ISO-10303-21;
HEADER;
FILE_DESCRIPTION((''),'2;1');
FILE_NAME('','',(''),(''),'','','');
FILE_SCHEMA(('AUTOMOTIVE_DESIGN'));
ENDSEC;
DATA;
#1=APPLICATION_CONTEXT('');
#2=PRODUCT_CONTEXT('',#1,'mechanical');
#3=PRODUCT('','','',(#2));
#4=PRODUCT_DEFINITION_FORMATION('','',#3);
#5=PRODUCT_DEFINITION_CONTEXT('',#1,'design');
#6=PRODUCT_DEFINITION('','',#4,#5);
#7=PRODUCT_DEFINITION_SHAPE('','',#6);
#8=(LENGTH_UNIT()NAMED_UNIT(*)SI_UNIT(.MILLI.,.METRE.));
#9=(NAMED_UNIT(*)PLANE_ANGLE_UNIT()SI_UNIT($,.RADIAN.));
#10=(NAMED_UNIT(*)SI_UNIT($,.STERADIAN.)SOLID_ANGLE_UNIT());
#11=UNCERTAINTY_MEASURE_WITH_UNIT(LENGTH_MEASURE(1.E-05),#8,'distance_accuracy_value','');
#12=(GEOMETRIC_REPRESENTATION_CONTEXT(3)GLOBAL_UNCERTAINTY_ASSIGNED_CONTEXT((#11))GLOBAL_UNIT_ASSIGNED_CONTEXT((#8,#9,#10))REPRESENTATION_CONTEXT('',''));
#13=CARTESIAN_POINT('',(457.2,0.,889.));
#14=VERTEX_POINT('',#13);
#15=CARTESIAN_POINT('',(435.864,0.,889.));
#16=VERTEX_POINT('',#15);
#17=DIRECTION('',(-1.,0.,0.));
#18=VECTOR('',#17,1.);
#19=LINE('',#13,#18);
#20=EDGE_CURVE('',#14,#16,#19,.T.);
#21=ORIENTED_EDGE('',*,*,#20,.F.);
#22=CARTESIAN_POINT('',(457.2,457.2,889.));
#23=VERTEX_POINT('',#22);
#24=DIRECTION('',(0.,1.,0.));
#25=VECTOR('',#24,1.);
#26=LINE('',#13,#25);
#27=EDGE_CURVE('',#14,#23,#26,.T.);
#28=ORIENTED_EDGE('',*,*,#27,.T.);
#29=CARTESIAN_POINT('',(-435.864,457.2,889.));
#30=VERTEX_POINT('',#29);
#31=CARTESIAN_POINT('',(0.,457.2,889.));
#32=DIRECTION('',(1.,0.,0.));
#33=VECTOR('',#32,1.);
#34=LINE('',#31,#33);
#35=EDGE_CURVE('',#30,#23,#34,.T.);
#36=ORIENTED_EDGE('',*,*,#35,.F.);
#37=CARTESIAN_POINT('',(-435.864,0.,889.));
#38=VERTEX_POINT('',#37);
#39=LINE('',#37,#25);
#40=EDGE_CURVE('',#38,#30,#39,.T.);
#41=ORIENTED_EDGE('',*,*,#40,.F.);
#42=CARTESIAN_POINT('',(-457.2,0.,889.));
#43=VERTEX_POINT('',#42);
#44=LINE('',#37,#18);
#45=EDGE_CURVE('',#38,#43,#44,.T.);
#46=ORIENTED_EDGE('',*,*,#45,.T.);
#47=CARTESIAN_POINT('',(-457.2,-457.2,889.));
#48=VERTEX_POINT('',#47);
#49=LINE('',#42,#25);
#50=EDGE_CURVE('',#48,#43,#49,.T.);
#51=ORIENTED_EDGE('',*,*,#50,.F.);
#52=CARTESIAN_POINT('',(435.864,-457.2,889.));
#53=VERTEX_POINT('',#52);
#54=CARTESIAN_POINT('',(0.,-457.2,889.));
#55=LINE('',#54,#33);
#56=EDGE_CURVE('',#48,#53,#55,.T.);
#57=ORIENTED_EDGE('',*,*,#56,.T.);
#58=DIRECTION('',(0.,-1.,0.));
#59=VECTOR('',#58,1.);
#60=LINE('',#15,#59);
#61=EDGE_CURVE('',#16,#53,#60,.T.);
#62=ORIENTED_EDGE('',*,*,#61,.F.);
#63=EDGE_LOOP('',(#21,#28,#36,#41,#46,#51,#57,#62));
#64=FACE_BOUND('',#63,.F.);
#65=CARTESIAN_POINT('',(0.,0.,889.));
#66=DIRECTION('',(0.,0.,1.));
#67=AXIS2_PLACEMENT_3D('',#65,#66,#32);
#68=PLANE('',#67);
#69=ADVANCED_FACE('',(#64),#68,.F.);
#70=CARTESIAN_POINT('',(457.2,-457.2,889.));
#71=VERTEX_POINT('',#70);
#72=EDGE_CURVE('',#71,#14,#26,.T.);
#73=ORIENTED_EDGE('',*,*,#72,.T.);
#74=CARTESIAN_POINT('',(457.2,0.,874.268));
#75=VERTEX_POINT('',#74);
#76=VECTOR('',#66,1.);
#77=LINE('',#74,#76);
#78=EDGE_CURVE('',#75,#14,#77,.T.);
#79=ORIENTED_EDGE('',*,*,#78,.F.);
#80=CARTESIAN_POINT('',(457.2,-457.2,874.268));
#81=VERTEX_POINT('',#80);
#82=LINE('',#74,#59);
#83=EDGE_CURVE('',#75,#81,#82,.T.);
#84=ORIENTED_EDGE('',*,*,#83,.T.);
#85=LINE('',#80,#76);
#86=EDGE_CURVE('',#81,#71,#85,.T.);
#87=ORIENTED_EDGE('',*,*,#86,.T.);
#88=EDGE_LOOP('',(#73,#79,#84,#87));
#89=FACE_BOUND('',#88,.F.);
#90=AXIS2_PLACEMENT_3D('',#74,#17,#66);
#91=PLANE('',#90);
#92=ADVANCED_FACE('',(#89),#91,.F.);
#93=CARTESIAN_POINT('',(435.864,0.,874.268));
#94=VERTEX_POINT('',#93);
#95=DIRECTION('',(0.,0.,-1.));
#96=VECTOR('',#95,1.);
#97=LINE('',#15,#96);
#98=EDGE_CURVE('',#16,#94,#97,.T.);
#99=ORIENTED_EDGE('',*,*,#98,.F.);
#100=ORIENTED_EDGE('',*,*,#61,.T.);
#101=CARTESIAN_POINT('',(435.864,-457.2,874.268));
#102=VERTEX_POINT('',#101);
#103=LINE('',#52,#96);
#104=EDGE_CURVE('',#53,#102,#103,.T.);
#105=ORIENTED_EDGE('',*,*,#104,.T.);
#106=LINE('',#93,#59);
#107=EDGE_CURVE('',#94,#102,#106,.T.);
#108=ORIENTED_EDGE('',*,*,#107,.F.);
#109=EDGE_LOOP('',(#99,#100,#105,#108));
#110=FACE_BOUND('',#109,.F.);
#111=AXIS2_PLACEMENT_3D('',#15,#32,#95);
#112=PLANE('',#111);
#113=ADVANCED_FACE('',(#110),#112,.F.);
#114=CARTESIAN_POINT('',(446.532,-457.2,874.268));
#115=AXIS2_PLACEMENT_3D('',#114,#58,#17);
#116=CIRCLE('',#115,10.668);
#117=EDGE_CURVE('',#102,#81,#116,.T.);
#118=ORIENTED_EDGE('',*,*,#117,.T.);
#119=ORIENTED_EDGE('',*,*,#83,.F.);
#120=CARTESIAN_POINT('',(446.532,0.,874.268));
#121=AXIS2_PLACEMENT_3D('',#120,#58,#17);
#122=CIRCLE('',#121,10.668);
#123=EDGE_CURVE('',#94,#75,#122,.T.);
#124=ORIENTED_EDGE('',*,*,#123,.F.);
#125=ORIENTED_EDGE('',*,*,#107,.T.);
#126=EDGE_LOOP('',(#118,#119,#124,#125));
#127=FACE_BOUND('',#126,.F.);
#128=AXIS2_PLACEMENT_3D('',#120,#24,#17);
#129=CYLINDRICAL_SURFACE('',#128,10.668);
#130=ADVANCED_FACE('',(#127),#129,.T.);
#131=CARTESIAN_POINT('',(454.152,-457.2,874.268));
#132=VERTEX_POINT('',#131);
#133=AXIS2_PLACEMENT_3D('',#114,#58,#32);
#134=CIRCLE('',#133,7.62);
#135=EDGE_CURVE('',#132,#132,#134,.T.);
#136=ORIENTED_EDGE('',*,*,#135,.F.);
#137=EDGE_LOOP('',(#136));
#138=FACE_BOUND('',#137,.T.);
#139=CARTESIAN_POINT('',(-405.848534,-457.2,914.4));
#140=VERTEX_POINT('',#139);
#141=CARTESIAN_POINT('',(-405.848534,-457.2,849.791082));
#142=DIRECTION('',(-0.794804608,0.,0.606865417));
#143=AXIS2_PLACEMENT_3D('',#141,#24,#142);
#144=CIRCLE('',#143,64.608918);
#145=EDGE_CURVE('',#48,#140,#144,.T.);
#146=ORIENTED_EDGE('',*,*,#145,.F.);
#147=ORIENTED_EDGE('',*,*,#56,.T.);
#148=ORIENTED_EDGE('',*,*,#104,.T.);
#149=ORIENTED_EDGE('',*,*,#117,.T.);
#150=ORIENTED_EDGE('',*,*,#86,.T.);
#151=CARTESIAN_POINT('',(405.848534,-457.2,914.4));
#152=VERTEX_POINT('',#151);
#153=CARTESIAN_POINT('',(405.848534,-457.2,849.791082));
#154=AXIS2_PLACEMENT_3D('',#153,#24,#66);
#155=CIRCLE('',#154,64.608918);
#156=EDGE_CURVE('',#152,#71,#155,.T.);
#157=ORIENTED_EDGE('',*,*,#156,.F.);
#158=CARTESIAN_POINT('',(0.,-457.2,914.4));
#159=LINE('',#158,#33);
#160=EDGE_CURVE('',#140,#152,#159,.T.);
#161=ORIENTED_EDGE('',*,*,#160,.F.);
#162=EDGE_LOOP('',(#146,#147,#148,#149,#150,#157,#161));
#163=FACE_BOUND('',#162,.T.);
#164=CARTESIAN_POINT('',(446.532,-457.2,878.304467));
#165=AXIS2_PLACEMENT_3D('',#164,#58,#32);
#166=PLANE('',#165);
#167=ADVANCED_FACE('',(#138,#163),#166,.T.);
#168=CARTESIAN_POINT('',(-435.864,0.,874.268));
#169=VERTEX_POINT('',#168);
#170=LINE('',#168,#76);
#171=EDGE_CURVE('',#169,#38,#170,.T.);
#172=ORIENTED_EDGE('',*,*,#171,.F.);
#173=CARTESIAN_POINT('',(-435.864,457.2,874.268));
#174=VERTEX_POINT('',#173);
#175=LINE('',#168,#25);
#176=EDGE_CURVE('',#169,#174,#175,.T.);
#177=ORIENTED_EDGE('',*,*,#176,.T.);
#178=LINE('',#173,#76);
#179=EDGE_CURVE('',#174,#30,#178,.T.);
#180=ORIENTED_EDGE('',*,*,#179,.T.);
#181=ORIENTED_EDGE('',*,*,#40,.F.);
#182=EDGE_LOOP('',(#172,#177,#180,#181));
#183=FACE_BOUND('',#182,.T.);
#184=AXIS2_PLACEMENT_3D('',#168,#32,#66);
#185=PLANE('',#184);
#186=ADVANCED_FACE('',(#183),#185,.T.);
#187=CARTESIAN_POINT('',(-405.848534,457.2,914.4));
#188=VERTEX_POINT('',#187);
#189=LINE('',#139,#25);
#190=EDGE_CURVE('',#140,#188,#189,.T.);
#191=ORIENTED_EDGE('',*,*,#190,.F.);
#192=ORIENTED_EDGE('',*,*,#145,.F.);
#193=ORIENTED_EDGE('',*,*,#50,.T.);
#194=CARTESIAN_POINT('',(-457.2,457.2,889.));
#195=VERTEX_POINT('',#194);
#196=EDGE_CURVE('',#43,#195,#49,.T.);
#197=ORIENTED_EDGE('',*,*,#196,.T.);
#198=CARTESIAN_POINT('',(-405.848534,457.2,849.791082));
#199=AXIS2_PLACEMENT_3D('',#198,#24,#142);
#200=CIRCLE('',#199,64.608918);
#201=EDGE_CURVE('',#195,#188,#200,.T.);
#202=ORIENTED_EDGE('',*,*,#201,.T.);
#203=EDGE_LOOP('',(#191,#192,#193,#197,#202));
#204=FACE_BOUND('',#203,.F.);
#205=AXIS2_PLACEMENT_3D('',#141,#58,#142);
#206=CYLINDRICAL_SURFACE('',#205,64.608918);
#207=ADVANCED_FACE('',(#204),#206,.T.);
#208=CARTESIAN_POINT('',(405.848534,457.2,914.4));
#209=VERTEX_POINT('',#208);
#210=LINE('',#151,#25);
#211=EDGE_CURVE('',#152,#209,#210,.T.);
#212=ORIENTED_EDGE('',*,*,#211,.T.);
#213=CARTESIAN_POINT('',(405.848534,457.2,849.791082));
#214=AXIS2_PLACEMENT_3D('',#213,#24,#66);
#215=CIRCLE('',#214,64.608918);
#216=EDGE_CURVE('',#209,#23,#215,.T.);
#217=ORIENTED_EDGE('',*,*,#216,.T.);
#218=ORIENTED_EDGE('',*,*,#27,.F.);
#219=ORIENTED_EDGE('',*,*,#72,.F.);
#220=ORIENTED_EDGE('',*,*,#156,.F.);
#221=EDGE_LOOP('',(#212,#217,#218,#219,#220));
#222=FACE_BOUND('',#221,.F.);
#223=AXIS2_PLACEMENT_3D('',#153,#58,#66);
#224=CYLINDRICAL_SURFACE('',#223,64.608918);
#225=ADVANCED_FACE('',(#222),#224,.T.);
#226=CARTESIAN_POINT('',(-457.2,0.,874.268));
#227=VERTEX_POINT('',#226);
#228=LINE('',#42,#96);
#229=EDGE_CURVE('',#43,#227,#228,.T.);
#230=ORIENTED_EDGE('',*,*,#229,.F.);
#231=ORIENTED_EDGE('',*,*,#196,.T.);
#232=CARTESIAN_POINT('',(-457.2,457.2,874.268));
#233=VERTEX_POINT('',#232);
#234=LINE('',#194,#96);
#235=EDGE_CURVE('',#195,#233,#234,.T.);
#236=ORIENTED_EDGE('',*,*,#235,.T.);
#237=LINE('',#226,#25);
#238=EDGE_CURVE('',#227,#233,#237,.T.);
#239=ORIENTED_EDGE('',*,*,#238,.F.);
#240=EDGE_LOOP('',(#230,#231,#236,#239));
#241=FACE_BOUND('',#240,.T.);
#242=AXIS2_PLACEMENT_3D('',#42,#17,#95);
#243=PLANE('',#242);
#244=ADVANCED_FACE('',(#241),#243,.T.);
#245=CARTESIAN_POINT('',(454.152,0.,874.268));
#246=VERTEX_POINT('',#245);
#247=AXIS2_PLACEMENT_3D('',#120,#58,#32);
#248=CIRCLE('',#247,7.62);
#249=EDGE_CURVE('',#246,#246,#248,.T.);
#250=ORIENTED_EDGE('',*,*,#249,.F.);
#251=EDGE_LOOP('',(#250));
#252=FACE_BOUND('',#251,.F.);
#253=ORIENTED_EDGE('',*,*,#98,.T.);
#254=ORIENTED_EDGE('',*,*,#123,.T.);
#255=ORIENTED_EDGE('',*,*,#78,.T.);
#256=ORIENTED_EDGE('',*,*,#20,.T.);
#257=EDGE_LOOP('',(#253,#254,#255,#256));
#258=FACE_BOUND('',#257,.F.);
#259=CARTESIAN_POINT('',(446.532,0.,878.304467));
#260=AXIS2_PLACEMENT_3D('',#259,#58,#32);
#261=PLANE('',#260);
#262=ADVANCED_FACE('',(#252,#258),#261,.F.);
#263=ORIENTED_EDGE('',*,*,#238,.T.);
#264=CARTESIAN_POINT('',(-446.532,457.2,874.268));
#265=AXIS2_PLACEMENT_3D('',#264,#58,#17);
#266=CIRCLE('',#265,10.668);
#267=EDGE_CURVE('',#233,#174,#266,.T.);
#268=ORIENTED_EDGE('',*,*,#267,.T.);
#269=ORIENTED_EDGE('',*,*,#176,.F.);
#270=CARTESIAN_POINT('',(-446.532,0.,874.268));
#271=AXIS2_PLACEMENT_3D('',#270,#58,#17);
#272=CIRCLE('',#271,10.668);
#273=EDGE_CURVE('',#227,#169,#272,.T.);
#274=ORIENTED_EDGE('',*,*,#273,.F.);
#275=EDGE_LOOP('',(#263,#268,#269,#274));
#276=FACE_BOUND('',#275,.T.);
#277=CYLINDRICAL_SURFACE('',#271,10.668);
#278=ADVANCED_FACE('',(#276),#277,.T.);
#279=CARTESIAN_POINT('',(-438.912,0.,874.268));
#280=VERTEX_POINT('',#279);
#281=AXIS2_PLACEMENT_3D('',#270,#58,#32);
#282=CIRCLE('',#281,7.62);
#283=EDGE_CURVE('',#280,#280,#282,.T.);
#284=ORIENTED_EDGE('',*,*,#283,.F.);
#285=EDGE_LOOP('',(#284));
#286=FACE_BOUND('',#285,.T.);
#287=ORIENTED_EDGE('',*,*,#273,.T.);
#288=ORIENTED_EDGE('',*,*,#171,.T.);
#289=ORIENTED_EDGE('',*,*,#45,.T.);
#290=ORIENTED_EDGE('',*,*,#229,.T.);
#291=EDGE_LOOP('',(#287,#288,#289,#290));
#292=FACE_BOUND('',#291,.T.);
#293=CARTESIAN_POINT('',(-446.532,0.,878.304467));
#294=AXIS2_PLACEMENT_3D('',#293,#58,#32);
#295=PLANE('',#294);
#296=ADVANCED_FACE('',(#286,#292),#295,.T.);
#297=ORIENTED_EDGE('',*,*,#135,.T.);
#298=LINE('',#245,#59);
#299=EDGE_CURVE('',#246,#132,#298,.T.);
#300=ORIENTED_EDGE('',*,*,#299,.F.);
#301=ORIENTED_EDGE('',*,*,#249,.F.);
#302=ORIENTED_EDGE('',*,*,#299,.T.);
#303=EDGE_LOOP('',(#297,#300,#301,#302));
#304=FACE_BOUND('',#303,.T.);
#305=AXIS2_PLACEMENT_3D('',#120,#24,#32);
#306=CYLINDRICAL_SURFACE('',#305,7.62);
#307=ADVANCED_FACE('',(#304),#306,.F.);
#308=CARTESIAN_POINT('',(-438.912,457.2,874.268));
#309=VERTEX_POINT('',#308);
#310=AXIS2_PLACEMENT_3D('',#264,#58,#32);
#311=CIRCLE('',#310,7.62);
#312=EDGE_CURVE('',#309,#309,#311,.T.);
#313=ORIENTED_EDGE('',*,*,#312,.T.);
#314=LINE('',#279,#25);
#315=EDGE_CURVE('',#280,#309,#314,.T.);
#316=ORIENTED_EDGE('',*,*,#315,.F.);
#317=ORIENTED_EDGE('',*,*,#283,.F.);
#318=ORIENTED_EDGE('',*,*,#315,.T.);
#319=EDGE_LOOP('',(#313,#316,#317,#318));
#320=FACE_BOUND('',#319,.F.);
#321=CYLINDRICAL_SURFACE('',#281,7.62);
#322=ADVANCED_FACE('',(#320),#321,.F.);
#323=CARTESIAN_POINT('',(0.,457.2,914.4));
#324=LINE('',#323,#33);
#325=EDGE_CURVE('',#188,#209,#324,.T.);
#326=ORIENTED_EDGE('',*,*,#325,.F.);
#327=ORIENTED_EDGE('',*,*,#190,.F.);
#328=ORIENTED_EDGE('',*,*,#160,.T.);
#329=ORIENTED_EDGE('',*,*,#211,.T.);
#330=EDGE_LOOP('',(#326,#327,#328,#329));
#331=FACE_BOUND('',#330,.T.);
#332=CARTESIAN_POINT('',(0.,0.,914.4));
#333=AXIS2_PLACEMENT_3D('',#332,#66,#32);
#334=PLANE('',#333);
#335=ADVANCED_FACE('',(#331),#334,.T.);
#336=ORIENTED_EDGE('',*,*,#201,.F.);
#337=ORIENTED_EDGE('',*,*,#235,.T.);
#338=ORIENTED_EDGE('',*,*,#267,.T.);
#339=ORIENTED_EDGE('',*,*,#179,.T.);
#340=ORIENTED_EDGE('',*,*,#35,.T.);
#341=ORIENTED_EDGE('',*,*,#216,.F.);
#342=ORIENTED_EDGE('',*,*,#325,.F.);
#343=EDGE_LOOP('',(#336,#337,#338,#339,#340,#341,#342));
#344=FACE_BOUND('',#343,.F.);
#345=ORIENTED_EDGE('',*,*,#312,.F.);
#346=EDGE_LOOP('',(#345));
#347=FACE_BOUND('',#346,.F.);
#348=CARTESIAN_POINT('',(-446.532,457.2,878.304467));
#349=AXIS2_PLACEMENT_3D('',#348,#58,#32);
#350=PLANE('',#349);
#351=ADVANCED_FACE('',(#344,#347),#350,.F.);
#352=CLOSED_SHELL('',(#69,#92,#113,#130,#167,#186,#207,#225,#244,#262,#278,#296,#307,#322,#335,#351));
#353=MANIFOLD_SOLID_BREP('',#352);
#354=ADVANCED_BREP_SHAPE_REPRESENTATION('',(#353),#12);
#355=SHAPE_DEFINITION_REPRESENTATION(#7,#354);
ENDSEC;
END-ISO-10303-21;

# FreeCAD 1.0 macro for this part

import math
import FreeCAD as App
import Part
import Sketcher
Q = App.Units.Quantity

doc = App.newDocument("Part")
body = doc.addObject("PartDesign::Body", "Body")

# Sketch on XY plane
sketch1 = doc.addObject("Sketcher::SketchObject", "Sketch")
body.addObject(sketch1)
sketch1.AttachmentSupport = (doc.XY_Plane, [""])
sketch1.MapMode = "FlatFace"
sketch1.AttachmentOffset = App.Placement(App.Vector(0, 0, 36 * 25.4), App.Rotation())
sketch1.addGeometry([
    Part.LineSegment(App.Vector(-457, 457, 0), App.Vector(-457, -457, 0)),
    Part.LineSegment(App.Vector(-457, -457, 0), App.Vector(457, -457, 0)),
    Part.LineSegment(App.Vector(457, -457, 0), App.Vector(457, 457, 0)),
    Part.LineSegment(App.Vector(457, 457, 0), App.Vector(-457, 457, 0)),
], False)
sketch1.addConstraint([
    Sketcher.Constraint("Coincident", 0, 2, 1, 1),
    Sketcher.Constraint("Coincident", 1, 2, 2, 1),
    Sketcher.Constraint("Coincident", 2, 2, 3, 1),
    Sketcher.Constraint("Coincident", 3, 2, 0, 1),
    Sketcher.Constraint("Vertical", 0),
    Sketcher.Constraint("Horizontal", 1),
    Sketcher.Constraint("Vertical", 2),
    Sketcher.Constraint("Horizontal", 3),
    Sketcher.Constraint("Symmetric", 0, 2, 2, 2, -1, 1),
    Sketcher.Constraint("Equal", 3, 0),
    Sketcher.Constraint("DistanceX", 1, 1, 1, 2, Q("36 in")),
])
pad1 = doc.addObject("PartDesign::Pad", "Pad")
body.addObject(pad1)
pad1.Profile = sketch1
pad1.Length = Q("1 in")
pad1.Reversed = True

# Sketch on XZ plane
sketch2 = doc.addObject("Sketcher::SketchObject", "Sketch001")
body.addObject(sketch2)
sketch2.AttachmentSupport = (doc.XZ_Plane, [""])
sketch2.MapMode = "FlatFace"
sketch2.AttachmentOffset = App.Placement(App.Vector(0, 0, 18 * 25.4), App.Rotation())
sketch2.addGeometry([
    Part.ArcOfCircle(Part.Circle(App.Vector(-406, 850, 0), App.Vector(0, 0, 1), 65), math.radians(90), math.radians(143)),  # 0
    Part.LineSegment(App.Vector(-406, 914, 0), App.Vector(-457, 914, 0)),  # 1
    Part.LineSegment(App.Vector(-457, 914, 0), App.Vector(-457, 889, 0)),  # 2
    Part.LineSegment(App.Vector(457, 889, 0), App.Vector(457, 914, 0)),  # 3
    Part.LineSegment(App.Vector(457, 914, 0), App.Vector(406, 914, 0)),  # 4
    Part.ArcOfCircle(Part.Circle(App.Vector(406, 850, 0), App.Vector(0, 0, 1), 65), math.radians(37), math.radians(90)),  # 5
], False)
sketch2.addConstraint([
    Sketcher.Constraint("Tangent", 0, 1, 1, 1),
    Sketcher.Constraint("Coincident", 1, 2, 2, 1),
    Sketcher.Constraint("Coincident", 2, 2, 0, 2),
    Sketcher.Constraint("Coincident", 3, 2, 4, 1),
    Sketcher.Constraint("Tangent", 4, 2, 5, 2),
    Sketcher.Constraint("Coincident", 5, 1, 3, 1),
    Sketcher.Constraint("Horizontal", 1),
    Sketcher.Constraint("Vertical", 2),
    Sketcher.Constraint("Vertical", 3),
    Sketcher.Constraint("Horizontal", 4),
    Sketcher.Constraint("Equal", 0, 5),
    Sketcher.Constraint("Symmetric", 0, 3, 5, 3, -2),
    Sketcher.Constraint("Horizontal", 2, 2, 5, 1),
    Sketcher.Constraint("DistanceY", 2, 2, 2, 1, Q("1 in")),
    Sketcher.Constraint("DistanceY", -1, 1, 0, 1, Q("36 in")),
    Sketcher.Constraint("DistanceX", 1, 2, -1, 1, Q("18 in")),
    Sketcher.Constraint("Radius", 0, Q("64.608918 mm")),
])
pocket1 = doc.addObject("PartDesign::Pocket", "Pocket")
body.addObject(pocket1)
pocket1.Profile = sketch2
pocket1.Type = "ThroughAll"

# Sketch on XZ plane
sketch3 = doc.addObject("Sketcher::SketchObject", "Sketch002")
body.addObject(sketch3)
sketch3.AttachmentSupport = (doc.XZ_Plane, [""])
sketch3.MapMode = "FlatFace"
sketch3.addGeometry([
    Part.LineSegment(App.Vector(-457, 889, 0), App.Vector(-457, 874, 0)),  # 0
    Part.ArcOfCircle(Part.Circle(App.Vector(-447, 874, 0), App.Vector(0, 0, 1), 11), math.radians(180), math.radians(360)),  # 1
    Part.LineSegment(App.Vector(-436, 874, 0), App.Vector(-436, 889, 0)),  # 2
    Part.LineSegment(App.Vector(-436, 889, 0), App.Vector(-457, 889, 0)),  # 3
    Part.Circle(App.Vector(-447, 874, 0), App.Vector(0, 0, 1), 8),  # 4
], False)
sketch3.addConstraint([
    Sketcher.Constraint("Tangent", 0, 2, 1, 1),
    Sketcher.Constraint("Tangent", 1, 2, 2, 1),
    Sketcher.Constraint("Coincident", 2, 2, 3, 1),
    Sketcher.Constraint("Coincident", 3, 2, 0, 1),
    Sketcher.Constraint("Vertical", 0),
    Sketcher.Constraint("Vertical", 2),
    Sketcher.Constraint("Horizontal", 3),
    Sketcher.Constraint("Coincident", 4, 3, 1, 3),
    Sketcher.Constraint("Diameter", 4, Q("0.6 in")),
    Sketcher.Constraint("Radius", 1, Q("0.42 in")),
    Sketcher.Constraint("DistanceX", 0, 2, -1, 1, Q("18 in")),
    Sketcher.Constraint("DistanceY", -1, 1, 2, 2, Q("35 in")),
    Sketcher.Constraint("DistanceY", 0, 2, 0, 1, Q("0.58 in")),
])
pad2 = doc.addObject("PartDesign::Pad", "Pad001")
body.addObject(pad2)
pad2.Profile = sketch3
pad2.Length = Q("18 in")
pad2.Reversed = True

# Sketch on XZ plane
sketch4 = doc.addObject("Sketcher::SketchObject", "Sketch003")
body.addObject(sketch4)
sketch4.AttachmentSupport = (doc.XZ_Plane, [""])
sketch4.MapMode = "FlatFace"
sketch4.addGeometry([
    Part.LineSegment(App.Vector(436, 889, 0), App.Vector(436, 874, 0)),  # 0
    Part.ArcOfCircle(Part.Circle(App.Vector(447, 874, 0), App.Vector(0, 0, 1), 11), math.radians(180), math.radians(360)),  # 1
    Part.LineSegment(App.Vector(457, 874, 0), App.Vector(457, 889, 0)),  # 2
    Part.LineSegment(App.Vector(457, 889, 0), App.Vector(436, 889, 0)),  # 3
    Part.Circle(App.Vector(447, 874, 0), App.Vector(0, 0, 1), 8),  # 4
], False)
sketch4.addConstraint([
    Sketcher.Constraint("Tangent", 0, 2, 1, 1),
    Sketcher.Constraint("Tangent", 1, 2, 2, 1),
    Sketcher.Constraint("Coincident", 2, 2, 3, 1),
    Sketcher.Constraint("Coincident", 3, 2, 0, 1),
    Sketcher.Constraint("Vertical", 0),
    Sketcher.Constraint("Vertical", 2),
    Sketcher.Constraint("Horizontal", 3),
    Sketcher.Constraint("Coincident", 4, 3, 1, 3),
    Sketcher.Constraint("Diameter", 4, Q("0.6 in")),
    Sketcher.Constraint("Radius", 1, Q("0.42 in")),
    Sketcher.Constraint("DistanceX", -1, 1, 1, 2, Q("18 in")),
    Sketcher.Constraint("DistanceY", -1, 1, 2, 2, Q("35 in")),
    Sketcher.Constraint("DistanceY", 0, 2, 0, 1, Q("0.58 in")),
])
pad3 = doc.addObject("PartDesign::Pad", "Pad002")
body.addObject(pad3)
pad3.Profile = sketch4
pad3.Length = Q("18 in")

doc.recompute()
